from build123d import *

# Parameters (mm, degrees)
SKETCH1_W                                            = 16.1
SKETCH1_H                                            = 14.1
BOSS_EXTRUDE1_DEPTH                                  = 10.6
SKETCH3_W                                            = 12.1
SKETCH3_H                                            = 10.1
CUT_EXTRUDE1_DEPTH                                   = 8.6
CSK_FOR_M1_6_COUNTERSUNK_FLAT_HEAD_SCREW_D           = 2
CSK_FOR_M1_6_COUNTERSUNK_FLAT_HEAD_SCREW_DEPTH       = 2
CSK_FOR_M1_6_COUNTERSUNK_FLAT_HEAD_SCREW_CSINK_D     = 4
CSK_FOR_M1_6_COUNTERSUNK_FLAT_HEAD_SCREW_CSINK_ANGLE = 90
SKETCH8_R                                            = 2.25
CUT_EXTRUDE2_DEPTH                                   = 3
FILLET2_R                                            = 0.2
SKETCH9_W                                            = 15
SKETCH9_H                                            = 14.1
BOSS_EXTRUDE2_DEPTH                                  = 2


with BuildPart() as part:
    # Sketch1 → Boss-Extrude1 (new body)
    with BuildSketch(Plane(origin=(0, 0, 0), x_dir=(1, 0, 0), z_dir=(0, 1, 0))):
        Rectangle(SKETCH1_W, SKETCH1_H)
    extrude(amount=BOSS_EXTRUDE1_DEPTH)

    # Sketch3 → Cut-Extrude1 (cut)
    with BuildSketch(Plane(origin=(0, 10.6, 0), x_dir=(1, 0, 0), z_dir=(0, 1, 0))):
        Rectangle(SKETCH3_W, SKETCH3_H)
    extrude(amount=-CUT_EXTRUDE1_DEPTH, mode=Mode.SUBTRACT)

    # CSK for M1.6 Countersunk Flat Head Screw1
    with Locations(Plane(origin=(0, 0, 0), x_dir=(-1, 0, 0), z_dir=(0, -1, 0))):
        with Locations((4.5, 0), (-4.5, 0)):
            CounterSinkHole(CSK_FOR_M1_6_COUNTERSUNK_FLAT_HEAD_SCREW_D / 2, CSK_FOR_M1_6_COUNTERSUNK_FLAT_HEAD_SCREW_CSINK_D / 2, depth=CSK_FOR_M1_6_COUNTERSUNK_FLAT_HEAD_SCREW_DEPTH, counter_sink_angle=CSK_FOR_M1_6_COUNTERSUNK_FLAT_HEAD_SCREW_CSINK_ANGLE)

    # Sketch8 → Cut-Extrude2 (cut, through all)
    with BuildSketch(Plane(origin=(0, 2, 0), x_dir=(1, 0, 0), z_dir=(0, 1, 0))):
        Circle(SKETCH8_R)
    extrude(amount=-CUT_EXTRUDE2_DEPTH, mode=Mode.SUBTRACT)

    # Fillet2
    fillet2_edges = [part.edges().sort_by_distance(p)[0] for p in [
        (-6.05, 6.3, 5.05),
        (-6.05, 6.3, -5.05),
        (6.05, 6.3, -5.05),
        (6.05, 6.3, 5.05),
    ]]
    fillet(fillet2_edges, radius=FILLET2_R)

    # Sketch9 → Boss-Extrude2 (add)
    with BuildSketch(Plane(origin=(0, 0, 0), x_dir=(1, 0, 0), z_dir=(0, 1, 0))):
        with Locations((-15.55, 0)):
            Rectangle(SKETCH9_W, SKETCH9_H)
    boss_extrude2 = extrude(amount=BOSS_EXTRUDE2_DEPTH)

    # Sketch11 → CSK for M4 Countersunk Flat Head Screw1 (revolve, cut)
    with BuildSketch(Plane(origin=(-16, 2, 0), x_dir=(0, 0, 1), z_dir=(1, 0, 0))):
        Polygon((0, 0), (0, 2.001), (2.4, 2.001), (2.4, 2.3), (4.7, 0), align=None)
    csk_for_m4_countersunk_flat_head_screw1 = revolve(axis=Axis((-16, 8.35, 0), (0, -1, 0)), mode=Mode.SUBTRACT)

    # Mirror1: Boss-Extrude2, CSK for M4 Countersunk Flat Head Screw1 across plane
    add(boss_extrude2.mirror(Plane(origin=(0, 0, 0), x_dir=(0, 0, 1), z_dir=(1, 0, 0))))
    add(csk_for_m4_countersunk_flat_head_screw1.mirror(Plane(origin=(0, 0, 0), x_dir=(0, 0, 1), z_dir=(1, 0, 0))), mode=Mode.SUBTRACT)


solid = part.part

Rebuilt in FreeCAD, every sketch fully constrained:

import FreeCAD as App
import Part
import Sketcher
Q = App.Units.Quantity


def edges_at(feature, points):
    """Names of the edges that pass closest to the given points."""
    edges = feature.Shape.Edges
    near = lambda p: min(range(len(edges)), key=lambda i: edges[i].distToShape(Part.Vertex(*p))[0])
    return sorted({f"Edge{near(p) + 1}" for p in points})


def add_polygon(sketch, points):
    """Adds a closed chain of lines whose ends are joined by coincident constraints."""
    first, n = sketch.GeometryCount, len(points)
    for a, b in zip(points, points[1:] + points[:1]):
        sketch.addGeometry(Part.LineSegment(App.Vector(*a, 0), App.Vector(*b, 0)), False)
    for i in range(n):
        sketch.addConstraint(Sketcher.Constraint("Coincident", first + i, 2, first + (i + 1) % n, 1))

doc = App.newDocument("Part")
body = doc.addObject("PartDesign::Body", "Body")

# Sketch on XZ plane
sketch1 = doc.addObject("Sketcher::SketchObject", "Sketch")
body.addObject(sketch1)
sketch1.AttachmentSupport = (doc.XZ_Plane, [""])
sketch1.MapMode = "FlatFace"
add_polygon(sketch1, [(-8.05, -7.05), (-8.05, 7.05), (8.05, 7.05), (8.05, -7.05)])  # lines 0-3
sketch1.addConstraint([
    Sketcher.Constraint("Vertical", 0),
    Sketcher.Constraint("Horizontal", 1),
    Sketcher.Constraint("Vertical", 2),
    Sketcher.Constraint("Horizontal", 3),
    Sketcher.Constraint("Symmetric", 0, 2, 2, 2, -1, 1),
    Sketcher.Constraint("DistanceX", 1, 1, 1, 2, 16.1),
    Sketcher.Constraint("DistanceY", 0, 1, 0, 2, 14.1),
])
pad1 = doc.addObject("PartDesign::Pad", "Pad")
body.addObject(pad1)
pad1.Profile = sketch1
pad1.Length = 10.6
pad1.Reversed = True

# Sketch on XZ plane
sketch2 = doc.addObject("Sketcher::SketchObject", "Sketch001")
body.addObject(sketch2)
sketch2.AttachmentSupport = (doc.XZ_Plane, [""])
sketch2.MapMode = "FlatFace"
sketch2.AttachmentOffset = App.Placement(App.Vector(0, 0, -10.6), App.Rotation())
add_polygon(sketch2, [(-6.05, -5.05), (-6.05, 5.05), (6.05, 5.05), (6.05, -5.05)])  # lines 0-3
sketch2.addConstraint([
    Sketcher.Constraint("Vertical", 0),
    Sketcher.Constraint("Horizontal", 1),
    Sketcher.Constraint("Vertical", 2),
    Sketcher.Constraint("Horizontal", 3),
    Sketcher.Constraint("Symmetric", 0, 2, 2, 2, -1, 1),
    Sketcher.Constraint("DistanceX", 1, 1, 1, 2, 12.1),
    Sketcher.Constraint("DistanceY", 0, 1, 0, 2, 10.1),
])
pocket1 = doc.addObject("PartDesign::Pocket", "Pocket")
body.addObject(pocket1)
pocket1.Profile = sketch2
pocket1.Length = 8.6
pocket1.Reversed = True

# Sketch on XZ plane
sketch3 = doc.addObject("Sketcher::SketchObject", "Sketch002")
body.addObject(sketch3)
sketch3.AttachmentSupport = (doc.XZ_Plane, [""])
sketch3.MapMode = "FlatFace"
sketch3.addGeometry([
    Part.Circle(App.Vector(-4.5, 0, 0), App.Vector(0, 0, 1), 1),
    Part.Circle(App.Vector(4.5, 0, 0), App.Vector(0, 0, 1), 1),
], False)
sketch3.addConstraint([
    Sketcher.Constraint("Equal", 0, 1),
    Sketcher.Constraint("Symmetric", 0, 3, 1, 3, -1, 1),
    Sketcher.Constraint("PointOnObject", 0, 3, -1),
    Sketcher.Constraint("Diameter", 0, 2.0),
    Sketcher.Constraint("DistanceX", 0, 3, 1, 3, 9.0),
])
doc.recompute()
hole = doc.addObject("PartDesign::Hole", "Hole")
body.addObject(hole)
hole.Profile = sketch3
hole.ThreadType = "None"
hole.Diameter = 2
hole.DepthType = "Dimension"
hole.Depth = 2
hole.DrillPoint = "Flat"
hole.HoleCutType = "Countersink"
hole.HoleCutDiameter = 4
hole.HoleCutCountersinkAngle = 90

# Sketch on XZ plane
sketch4 = doc.addObject("Sketcher::SketchObject", "Sketch003")
body.addObject(sketch4)
sketch4.AttachmentSupport = (doc.XZ_Plane, [""])
sketch4.MapMode = "FlatFace"
sketch4.AttachmentOffset = App.Placement(App.Vector(0, 0, -2), App.Rotation())
sketch4.addGeometry(Part.Circle(App.Vector(0, 0, 0), App.Vector(0, 0, 1), 2.25), False)
sketch4.addConstraint([
    Sketcher.Constraint("Coincident", 0, 3, -1, 1),
    Sketcher.Constraint("Diameter", 0, 4.5),
])
pocket2 = doc.addObject("PartDesign::Pocket", "Pocket001")
body.addObject(pocket2)
pocket2.Profile = sketch4
pocket2.Type = "ThroughAll"
pocket2.Reversed = True
doc.recompute()

fillet = doc.addObject("PartDesign::Fillet", "Fillet")
body.addObject(fillet)
fillet.Base = (pocket2, edges_at(pocket2, [
    (-6.05, 6.3, 5.05),
    (-6.05, 6.3, -5.05),
    (6.05, 6.3, -5.05),
    (6.05, 6.3, 5.05),
]))
fillet.Radius = 0.2

# Sketch on XZ plane
sketch5 = doc.addObject("Sketcher::SketchObject", "Sketch004")
body.addObject(sketch5)
sketch5.AttachmentSupport = (doc.XZ_Plane, [""])
sketch5.MapMode = "FlatFace"
add_polygon(sketch5, [(-23.05, -7.05), (-23.05, 7.05), (-8.05, 7.05), (-8.05, -7.05)])  # lines 0-3
sketch5.addConstraint([
    Sketcher.Constraint("Vertical", 0),
    Sketcher.Constraint("Horizontal", 1),
    Sketcher.Constraint("Vertical", 2),
    Sketcher.Constraint("Horizontal", 3),
    Sketcher.Constraint("DistanceX", 1, 1, 1, 2, 15.0),
    Sketcher.Constraint("DistanceY", 0, 1, 0, 2, 14.1),
    Sketcher.Constraint("DistanceX", 0, 2, -1, 1, 23.05),
    Sketcher.Constraint("DistanceY", -1, 1, 0, 2, 7.05),
])
pad2 = doc.addObject("PartDesign::Pad", "Pad001")
body.addObject(pad2)
pad2.Profile = sketch5
pad2.Length = 2
pad2.Reversed = True

# Sketch on YZ plane
sketch6 = doc.addObject("Sketcher::SketchObject", "Sketch005")
body.addObject(sketch6)
sketch6.AttachmentSupport = (doc.YZ_Plane, [""])
sketch6.MapMode = "FlatFace"
sketch6.AttachmentOffset = App.Placement(App.Vector(0, 0, -16), App.Rotation())
add_polygon(sketch6, [(-0.001, 0), (2, 0), (2, 4.7), (-0.3, 2.4), (-0.001, 2.4)])  # lines 0-4
sketch6.addConstraint([
    Sketcher.Constraint("Horizontal", 0),
    Sketcher.Constraint("Vertical", 1),
    Sketcher.Constraint("Horizontal", 3),
    Sketcher.Constraint("Vertical", 4),
    Sketcher.Constraint("PointOnObject", 0, 2, -1),
    Sketcher.Constraint("Angle", 2, Q("-135 deg")),
    Sketcher.Constraint("DistanceY", 1, 1, 1, 2, 4.7),
    Sketcher.Constraint("DistanceY", 4, 2, 4, 1, 2.4),
    Sketcher.Constraint("DistanceX", -1, 1, 0, 2, 2.0),
    Sketcher.Constraint("DistanceX", 0, 1, 0, 2, 2.001),
])
groove = doc.addObject("PartDesign::Groove", "Groove")
body.addObject(groove)
groove.Profile = sketch6
groove.ReferenceAxis = (sketch6, ["H_Axis"])
groove.Angle = 360
doc.recompute()

mirrored = doc.addObject("PartDesign::Mirrored", "Mirrored")
body.addObject(mirrored)
mirrored.Originals = [pad2, groove]
mirrored.MirrorPlane = (doc.YZ_Plane, [""])
body.Tip = mirrored

doc.recompute()
